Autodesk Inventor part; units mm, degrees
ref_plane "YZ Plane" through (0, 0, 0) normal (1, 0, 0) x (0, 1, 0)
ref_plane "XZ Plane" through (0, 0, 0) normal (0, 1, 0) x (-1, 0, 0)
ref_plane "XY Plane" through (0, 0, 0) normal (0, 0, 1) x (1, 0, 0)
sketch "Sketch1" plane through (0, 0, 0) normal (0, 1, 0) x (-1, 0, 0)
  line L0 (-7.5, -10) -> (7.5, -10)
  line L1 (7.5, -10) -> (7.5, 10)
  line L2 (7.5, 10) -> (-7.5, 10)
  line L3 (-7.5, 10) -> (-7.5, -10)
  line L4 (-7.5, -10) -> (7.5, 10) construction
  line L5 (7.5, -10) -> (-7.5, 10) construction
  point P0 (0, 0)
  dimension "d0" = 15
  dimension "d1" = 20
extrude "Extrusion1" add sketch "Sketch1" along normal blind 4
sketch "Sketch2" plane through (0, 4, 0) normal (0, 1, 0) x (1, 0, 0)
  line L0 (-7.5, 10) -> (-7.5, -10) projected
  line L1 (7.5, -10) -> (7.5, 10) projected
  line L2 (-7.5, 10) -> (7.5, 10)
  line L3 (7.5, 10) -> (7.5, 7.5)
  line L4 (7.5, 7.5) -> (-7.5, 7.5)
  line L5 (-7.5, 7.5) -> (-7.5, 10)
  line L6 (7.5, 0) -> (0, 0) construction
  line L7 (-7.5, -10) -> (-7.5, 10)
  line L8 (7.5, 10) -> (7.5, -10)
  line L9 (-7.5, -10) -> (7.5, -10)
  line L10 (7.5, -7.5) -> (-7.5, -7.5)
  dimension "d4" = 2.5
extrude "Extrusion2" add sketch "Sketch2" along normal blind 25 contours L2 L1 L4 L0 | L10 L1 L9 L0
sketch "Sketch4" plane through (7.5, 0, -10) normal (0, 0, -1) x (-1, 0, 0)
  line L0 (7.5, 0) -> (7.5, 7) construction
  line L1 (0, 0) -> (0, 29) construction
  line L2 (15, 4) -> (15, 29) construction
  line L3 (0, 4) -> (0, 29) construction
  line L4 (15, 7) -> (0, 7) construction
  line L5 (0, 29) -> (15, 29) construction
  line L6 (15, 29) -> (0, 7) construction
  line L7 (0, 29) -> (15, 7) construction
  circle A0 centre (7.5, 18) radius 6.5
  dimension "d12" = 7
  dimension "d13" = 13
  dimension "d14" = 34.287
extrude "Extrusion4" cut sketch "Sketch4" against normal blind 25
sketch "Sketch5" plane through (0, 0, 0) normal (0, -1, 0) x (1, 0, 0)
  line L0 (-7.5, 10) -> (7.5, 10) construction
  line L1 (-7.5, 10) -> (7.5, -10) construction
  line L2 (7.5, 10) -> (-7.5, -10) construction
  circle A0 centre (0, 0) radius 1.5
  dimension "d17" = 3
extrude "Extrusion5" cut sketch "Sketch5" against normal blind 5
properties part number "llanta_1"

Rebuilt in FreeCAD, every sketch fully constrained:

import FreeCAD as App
import Part
import Sketcher

V = App.Vector


def add_polygon(sketch, points):
    """Adds a closed chain of lines whose ends are joined by coincident constraints."""
    first, n = sketch.GeometryCount, len(points)
    for a, b in zip(points, points[1:] + points[:1]):
        sketch.addGeometry(Part.LineSegment(App.Vector(*a, 0), App.Vector(*b, 0)), False)
    for i in range(n):
        sketch.addConstraint(Sketcher.Constraint("Coincident", first + i, 2, first + (i + 1) % n, 1))

doc = App.newDocument("Part")
body = doc.addObject("PartDesign::Body", "Body")

# Sketch on XZ plane
sketch1 = body.newObject("Sketcher::SketchObject", "Sketch")
sketch1.AttachmentSupport = (doc.getObject("XZ_Plane"), [""])
sketch1.MapMode = "FlatFace"
add_polygon(sketch1, [(8, 10), (8, -10), (-8, -10), (-8, 10)])  # lines 0-3
sketch1.addConstraint([
    Sketcher.Constraint("Vertical", 0),
    Sketcher.Constraint("Horizontal", 1),
    Sketcher.Constraint("Vertical", 2),
    Sketcher.Constraint("Horizontal", 3),
    Sketcher.Constraint("Symmetric", 0, 2, 2, 2, -1, 1),
    Sketcher.Constraint("DistanceX", 1, 2, 1, 1, 15.0),
    Sketcher.Constraint("DistanceY", 0, 2, 0, 1, 20.0),
])
pad1 = body.newObject("PartDesign::Pad", "Pad")
pad1.Profile = sketch1
pad1.Length = 4
pad1.Reversed = True

# Sketch on XZ plane
sketch2 = body.newObject("Sketcher::SketchObject", "Sketch001")
sketch2.AttachmentSupport = (doc.getObject("XZ_Plane"), [""])
sketch2.MapMode = "FlatFace"
sketch2.AttachmentOffset = App.Placement(V(0, 0, -4), App.Rotation())
add_polygon(sketch2, [(7.5, -10), (-7.5, -10), (-7.5, -7.5), (7.5, -7.5)])  # lines 0-3
add_polygon(sketch2, [(7.5, 7.5), (-7.5, 7.5), (-7.5, 10), (7.5, 10)])  # lines 4-7
sketch2.addConstraint([
    Sketcher.Constraint("Horizontal", 0),
    Sketcher.Constraint("Vertical", 1),
    Sketcher.Constraint("Horizontal", 2),
    Sketcher.Constraint("Vertical", 3),
    Sketcher.Constraint("Horizontal", 4),
    Sketcher.Constraint("Vertical", 5),
    Sketcher.Constraint("Horizontal", 6),
    Sketcher.Constraint("Vertical", 7),
    Sketcher.Constraint("Symmetric", 2, 2, 4, 2, -1, 1),
    Sketcher.Constraint("Symmetric", 0, 2, 6, 2, -1, 1),
    Sketcher.Constraint("Vertical", 1, 2, 4, 2),
    Sketcher.Constraint("DistanceY", 1, 1, 1, 2, 2.5),
    Sketcher.Constraint("DistanceX", 0, 2, 0, 1, 15.0),
    Sketcher.Constraint("DistanceY", 0, 2, -1, 1, 10.0),
])
pad2 = body.newObject("PartDesign::Pad", "Pad001")
pad2.Profile = sketch2
pad2.Length = 25
pad2.Reversed = True

# Sketch on XY plane
sketch3 = body.newObject("Sketcher::SketchObject", "Sketch002")
sketch3.AttachmentSupport = (doc.getObject("XY_Plane"), [""])
sketch3.MapMode = "FlatFace"
sketch3.AttachmentOffset = App.Placement(V(0, 0, -10), App.Rotation())
sketch3.addGeometry(Part.Circle(V(0, 18, 0), V(0, 0, 1), 6), False)
sketch3.addConstraint([
    Sketcher.Constraint("PointOnObject", 0, 3, -2),
    Sketcher.Constraint("Diameter", 0, 13.0),
    Sketcher.Constraint("DistanceY", -1, 1, 0, 3, 18.0),
])
pocket1 = body.newObject("PartDesign::Pocket", "Pocket")
pocket1.Profile = sketch3
pocket1.Length = 25
pocket1.Reversed = True

# Sketch on XZ plane
sketch4 = body.newObject("Sketcher::SketchObject", "Sketch003")
sketch4.AttachmentSupport = (doc.getObject("XZ_Plane"), [""])
sketch4.MapMode = "FlatFace"
sketch4.addGeometry(Part.Circle(V(0, 0, 0), V(0, 0, 1), 1.5), False)
sketch4.addConstraint([
    Sketcher.Constraint("Coincident", 0, 3, -1, 1),
    Sketcher.Constraint("Diameter", 0, 3.0),
])
pocket2 = body.newObject("PartDesign::Pocket", "Pocket001")
pocket2.Profile = sketch4
pocket2.Length = 5

doc.recompute()
